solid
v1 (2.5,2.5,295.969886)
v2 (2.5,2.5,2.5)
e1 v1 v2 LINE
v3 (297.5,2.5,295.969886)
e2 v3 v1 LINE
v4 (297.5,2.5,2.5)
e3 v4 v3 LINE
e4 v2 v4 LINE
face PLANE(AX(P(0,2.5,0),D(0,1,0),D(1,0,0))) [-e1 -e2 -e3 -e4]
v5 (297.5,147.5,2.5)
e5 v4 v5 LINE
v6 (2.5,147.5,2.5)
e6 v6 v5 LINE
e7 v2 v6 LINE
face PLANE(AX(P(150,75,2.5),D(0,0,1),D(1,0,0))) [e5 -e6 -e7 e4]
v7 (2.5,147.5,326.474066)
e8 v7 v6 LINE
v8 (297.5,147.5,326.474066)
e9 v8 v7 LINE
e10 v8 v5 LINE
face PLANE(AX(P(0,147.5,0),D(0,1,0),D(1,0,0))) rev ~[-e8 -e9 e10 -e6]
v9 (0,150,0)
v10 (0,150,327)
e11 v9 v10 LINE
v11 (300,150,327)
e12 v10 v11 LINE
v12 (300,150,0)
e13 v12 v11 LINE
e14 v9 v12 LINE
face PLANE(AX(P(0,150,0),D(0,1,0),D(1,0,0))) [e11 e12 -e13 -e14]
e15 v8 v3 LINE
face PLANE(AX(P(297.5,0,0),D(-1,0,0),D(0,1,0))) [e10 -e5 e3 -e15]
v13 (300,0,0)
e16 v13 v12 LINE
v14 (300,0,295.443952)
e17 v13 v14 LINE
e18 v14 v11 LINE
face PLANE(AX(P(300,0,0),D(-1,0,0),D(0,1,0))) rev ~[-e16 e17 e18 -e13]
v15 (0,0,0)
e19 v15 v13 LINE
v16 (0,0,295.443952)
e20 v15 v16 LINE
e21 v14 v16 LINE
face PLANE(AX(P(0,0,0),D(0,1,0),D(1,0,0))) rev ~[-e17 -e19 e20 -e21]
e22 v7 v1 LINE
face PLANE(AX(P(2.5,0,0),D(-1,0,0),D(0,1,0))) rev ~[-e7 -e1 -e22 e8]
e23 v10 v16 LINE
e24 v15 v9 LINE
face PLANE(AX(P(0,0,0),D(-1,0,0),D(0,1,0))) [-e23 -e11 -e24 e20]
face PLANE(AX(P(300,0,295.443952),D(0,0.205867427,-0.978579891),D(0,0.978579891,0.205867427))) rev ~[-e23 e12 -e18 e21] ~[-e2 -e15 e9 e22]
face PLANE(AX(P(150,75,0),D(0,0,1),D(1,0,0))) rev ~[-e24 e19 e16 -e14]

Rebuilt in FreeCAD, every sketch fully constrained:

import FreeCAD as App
import Part
import Sketcher
from FreeCAD import Vector


def faces_at(feature, points):
    """Names of the faces that lie closest to the given points."""
    faces = feature.Shape.Faces
    near = lambda p: min(range(len(faces)), key=lambda i: faces[i].distToShape(Part.Vertex(*p))[0])
    return sorted({f"Face{near(p) + 1}" for p in points})

doc = App.newDocument("Part")
body = doc.addObject("PartDesign::Body", "Body")

# Sketch on XY plane
sketch1 = body.newObject("Sketcher::SketchObject", "Sketch")
sketch1.AttachmentSupport = (doc.getObject("XY_Plane"), [""])
sketch1.MapMode = "FlatFace"
sketch1.addGeometry([
    Part.LineSegment(Vector(0, 150, 0), Vector(0, 0, 0)),
    Part.LineSegment(Vector(0, 0, 0), Vector(300, 0, 0)),
    Part.LineSegment(Vector(300, 0, 0), Vector(300, 150, 0)),
    Part.LineSegment(Vector(300, 150, 0), Vector(0, 150, 0)),
], False)
sketch1.addConstraint([
    Sketcher.Constraint("Coincident", 0, 2, 1, 1),
    Sketcher.Constraint("Coincident", 1, 2, 2, 1),
    Sketcher.Constraint("Coincident", 2, 2, 3, 1),
    Sketcher.Constraint("Coincident", 3, 2, 0, 1),
    Sketcher.Constraint("Vertical", 0),
    Sketcher.Constraint("Horizontal", 1),
    Sketcher.Constraint("Vertical", 2),
    Sketcher.Constraint("Horizontal", 3),
    Sketcher.Constraint("Coincident", 0, 2, -1, 1),
    Sketcher.Constraint("DistanceX", 1, 1, 1, 2, 300.0),
    Sketcher.Constraint("DistanceY", 0, 2, 0, 1, 150.0),
])
pad1 = body.newObject("PartDesign::Pad", "Pad")
pad1.Profile = sketch1
pad1.Length = 327
doc.recompute()

thickness = body.newObject("PartDesign::Thickness", "Thickness")
thickness.Base = (pad1, faces_at(pad1, [(150, 75, 327)]))
thickness.Value = 2.5
thickness.Reversed = True
thickness.Join = "Arc"

# Sketch on YZ plane
sketch2 = body.newObject("Sketcher::SketchObject", "Sketch001")
sketch2.AttachmentSupport = (doc.getObject("YZ_Plane"), [""])
sketch2.MapMode = "FlatFace"
sketch2.AttachmentOffset = App.Placement(Vector(0, 0, 300), App.Rotation())
sketch2.addGeometry([
    Part.LineSegment(Vector(0, 295.443952, 0), Vector(150, 327, 0)),
    Part.LineSegment(Vector(150, 327, 0), Vector(0, 327, 0)),
    Part.LineSegment(Vector(0, 327, 0), Vector(0, 295.443952, 0)),
], False)
sketch2.addConstraint([
    Sketcher.Constraint("Coincident", 0, 2, 1, 1),
    Sketcher.Constraint("Coincident", 1, 2, 2, 1),
    Sketcher.Constraint("Coincident", 2, 2, 0, 1),
    Sketcher.Constraint("Horizontal", 1),
    Sketcher.Constraint("Vertical", 2),
    Sketcher.Constraint("PointOnObject", 1, 2, -2),
    Sketcher.Constraint("DistanceX", 1, 2, 1, 1, 150.0),
    Sketcher.Constraint("DistanceY", -1, 1, 0, 2, 327.0),
    Sketcher.Constraint("DistanceY", 2, 2, 2, 1, 31.556048),
])
pocket1 = body.newObject("PartDesign::Pocket", "Pocket")
pocket1.Profile = sketch2
pocket1.Length = 346

doc.recompute()
